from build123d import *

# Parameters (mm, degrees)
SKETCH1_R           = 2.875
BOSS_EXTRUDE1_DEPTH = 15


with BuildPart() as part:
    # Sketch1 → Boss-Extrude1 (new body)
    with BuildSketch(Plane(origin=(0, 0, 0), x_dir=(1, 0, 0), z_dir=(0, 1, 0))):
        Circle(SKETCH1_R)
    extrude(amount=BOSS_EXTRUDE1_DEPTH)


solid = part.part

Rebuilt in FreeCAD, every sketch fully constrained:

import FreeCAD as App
import Part
import Sketcher

V = App.Vector
Q = App.Units.Quantity

doc = App.newDocument("Part")
body = doc.addObject("PartDesign::Body", "Body")

# Sketch on XZ plane
sketch1 = doc.addObject("Sketcher::SketchObject", "Sketch")
body.addObject(sketch1)
sketch1.AttachmentSupport = (doc.XZ_Plane, [""])
sketch1.MapMode = "FlatFace"
sketch1.addGeometry(Part.Circle(V(0, 0, 0), V(0, 0, 1), 2.875), False)
sketch1.addConstraint([
    Sketcher.Constraint("Coincident", 0, 3, -1, 1),
    Sketcher.Constraint("Diameter", 0, Q("5.75 mm")),
])
pad1 = doc.addObject("PartDesign::Pad", "Pad")
body.addObject(pad1)
pad1.Profile = sketch1
pad1.Length = 15
pad1.Reversed = True

doc.recompute()
